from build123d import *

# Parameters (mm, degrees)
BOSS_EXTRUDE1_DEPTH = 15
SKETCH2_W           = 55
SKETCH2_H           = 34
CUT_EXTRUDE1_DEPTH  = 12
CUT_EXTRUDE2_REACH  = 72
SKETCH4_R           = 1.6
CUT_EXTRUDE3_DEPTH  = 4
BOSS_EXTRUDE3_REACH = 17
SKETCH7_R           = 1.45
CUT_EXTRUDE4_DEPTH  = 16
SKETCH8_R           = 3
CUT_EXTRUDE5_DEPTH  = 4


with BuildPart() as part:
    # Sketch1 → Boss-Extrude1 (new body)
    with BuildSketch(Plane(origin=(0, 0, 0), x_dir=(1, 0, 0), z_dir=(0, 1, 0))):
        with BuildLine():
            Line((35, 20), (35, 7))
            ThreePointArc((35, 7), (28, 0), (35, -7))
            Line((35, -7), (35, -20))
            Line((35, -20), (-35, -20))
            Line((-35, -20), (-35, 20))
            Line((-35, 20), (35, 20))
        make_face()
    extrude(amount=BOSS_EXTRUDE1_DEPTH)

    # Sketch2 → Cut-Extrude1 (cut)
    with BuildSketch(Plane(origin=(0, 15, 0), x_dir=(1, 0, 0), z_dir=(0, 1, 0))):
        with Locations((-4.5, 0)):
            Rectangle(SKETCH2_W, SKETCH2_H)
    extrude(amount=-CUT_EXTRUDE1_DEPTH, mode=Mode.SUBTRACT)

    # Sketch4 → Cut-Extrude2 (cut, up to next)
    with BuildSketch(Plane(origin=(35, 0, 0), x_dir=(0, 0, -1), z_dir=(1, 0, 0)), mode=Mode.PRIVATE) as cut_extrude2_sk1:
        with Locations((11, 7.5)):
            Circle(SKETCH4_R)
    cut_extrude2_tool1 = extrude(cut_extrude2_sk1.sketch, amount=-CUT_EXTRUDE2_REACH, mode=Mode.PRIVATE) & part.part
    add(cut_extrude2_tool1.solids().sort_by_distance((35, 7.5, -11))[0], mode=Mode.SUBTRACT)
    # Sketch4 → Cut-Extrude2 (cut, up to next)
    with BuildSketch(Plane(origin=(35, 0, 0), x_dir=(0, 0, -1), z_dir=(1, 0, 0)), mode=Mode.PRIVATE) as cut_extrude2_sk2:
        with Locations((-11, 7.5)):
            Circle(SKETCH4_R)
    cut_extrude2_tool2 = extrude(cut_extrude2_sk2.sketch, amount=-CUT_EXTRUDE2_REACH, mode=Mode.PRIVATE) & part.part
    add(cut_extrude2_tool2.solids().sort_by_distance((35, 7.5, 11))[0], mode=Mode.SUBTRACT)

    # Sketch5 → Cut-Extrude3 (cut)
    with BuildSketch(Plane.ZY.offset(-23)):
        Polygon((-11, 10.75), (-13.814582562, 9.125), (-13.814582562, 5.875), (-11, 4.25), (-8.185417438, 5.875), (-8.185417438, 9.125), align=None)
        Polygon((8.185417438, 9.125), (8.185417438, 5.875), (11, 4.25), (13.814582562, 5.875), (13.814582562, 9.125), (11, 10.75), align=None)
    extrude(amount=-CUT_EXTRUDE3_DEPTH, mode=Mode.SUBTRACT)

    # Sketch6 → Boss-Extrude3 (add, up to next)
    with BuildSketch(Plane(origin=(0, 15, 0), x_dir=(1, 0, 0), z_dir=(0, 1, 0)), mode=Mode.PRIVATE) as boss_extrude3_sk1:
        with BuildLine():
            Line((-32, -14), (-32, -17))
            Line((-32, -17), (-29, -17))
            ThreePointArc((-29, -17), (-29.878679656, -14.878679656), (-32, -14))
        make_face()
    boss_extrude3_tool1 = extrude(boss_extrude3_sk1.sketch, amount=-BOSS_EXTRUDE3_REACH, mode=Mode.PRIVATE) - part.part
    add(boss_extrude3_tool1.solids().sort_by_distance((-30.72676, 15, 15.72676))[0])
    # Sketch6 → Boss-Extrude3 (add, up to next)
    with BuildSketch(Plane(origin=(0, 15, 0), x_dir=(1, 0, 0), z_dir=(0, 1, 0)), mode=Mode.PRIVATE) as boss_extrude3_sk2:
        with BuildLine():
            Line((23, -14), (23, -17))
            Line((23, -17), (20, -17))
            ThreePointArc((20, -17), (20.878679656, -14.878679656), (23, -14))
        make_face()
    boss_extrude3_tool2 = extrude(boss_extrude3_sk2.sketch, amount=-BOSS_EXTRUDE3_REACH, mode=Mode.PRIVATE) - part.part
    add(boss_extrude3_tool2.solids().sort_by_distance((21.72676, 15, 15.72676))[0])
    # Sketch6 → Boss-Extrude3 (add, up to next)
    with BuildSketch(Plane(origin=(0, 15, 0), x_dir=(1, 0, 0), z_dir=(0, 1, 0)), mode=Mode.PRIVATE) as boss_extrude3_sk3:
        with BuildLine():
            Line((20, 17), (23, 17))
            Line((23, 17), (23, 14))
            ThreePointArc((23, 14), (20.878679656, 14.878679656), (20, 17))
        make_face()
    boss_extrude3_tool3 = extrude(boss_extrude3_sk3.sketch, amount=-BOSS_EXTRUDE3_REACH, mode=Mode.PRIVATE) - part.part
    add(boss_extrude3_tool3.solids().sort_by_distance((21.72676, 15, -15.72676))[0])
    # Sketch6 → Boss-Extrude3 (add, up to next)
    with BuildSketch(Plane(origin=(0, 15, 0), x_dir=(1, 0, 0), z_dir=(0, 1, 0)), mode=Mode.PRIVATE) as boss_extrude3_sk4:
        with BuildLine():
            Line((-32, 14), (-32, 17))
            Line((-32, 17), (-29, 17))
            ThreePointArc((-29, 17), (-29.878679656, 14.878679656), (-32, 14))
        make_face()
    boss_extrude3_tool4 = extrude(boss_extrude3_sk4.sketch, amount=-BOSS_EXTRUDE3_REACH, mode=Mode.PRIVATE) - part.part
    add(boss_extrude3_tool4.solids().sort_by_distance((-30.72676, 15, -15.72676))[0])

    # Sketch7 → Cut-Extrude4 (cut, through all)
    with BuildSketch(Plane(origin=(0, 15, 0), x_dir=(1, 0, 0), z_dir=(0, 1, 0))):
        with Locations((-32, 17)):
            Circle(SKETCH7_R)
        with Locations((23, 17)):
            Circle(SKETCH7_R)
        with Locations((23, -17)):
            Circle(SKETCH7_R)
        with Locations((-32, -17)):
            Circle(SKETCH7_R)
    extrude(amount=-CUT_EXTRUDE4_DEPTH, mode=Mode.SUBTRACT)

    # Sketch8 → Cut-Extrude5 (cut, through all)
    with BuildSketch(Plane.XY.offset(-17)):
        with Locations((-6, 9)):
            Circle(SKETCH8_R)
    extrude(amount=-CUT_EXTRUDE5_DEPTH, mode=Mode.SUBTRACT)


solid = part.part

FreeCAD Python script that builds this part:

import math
import FreeCAD as App
import Part
import Sketcher
from FreeCAD import Vector
Q = App.Units.Quantity

doc = App.newDocument("Part")
body = doc.addObject("PartDesign::Body", "Body")

# Sketch on XZ plane
sketch1 = doc.addObject("Sketcher::SketchObject", "Sketch")
body.addObject(sketch1)
sketch1.AttachmentSupport = (doc.XZ_Plane, [""])
sketch1.MapMode = "FlatFace"
sketch1.addGeometry(Part.LineSegment(Vector(35, -7, 0), Vector(35, -20, 0)), False)
sketch1.addGeometry(Part.LineSegment(Vector(35, -20, 0), Vector(-35, -20, 0)), False)
sketch1.addGeometry(Part.LineSegment(Vector(-35, -20, 0), Vector(-35, 20, 0)), False)
sketch1.addGeometry(Part.LineSegment(Vector(-35, 20, 0), Vector(35, 20, 0)), False)
sketch1.addGeometry(Part.LineSegment(Vector(35, 20, 0), Vector(35, 7, 0)), False)
sketch1.addGeometry(Part.ArcOfCircle(Part.Circle(Vector(35, 0, 0), Vector(0, 0, 1), 7), math.radians(90), math.radians(270)), False)
sketch1.addConstraint(Sketcher.Constraint("Coincident", 0, 2, 1, 1))
sketch1.addConstraint(Sketcher.Constraint("Coincident", 1, 2, 2, 1))
sketch1.addConstraint(Sketcher.Constraint("Coincident", 2, 2, 3, 1))
sketch1.addConstraint(Sketcher.Constraint("Coincident", 3, 2, 4, 1))
sketch1.addConstraint(Sketcher.Constraint("Coincident", 4, 2, 5, 1))
sketch1.addConstraint(Sketcher.Constraint("Coincident", 5, 2, 0, 1))
sketch1.addConstraint(Sketcher.Constraint("Vertical", 0))
sketch1.addConstraint(Sketcher.Constraint("Horizontal", 1))
sketch1.addConstraint(Sketcher.Constraint("Vertical", 2))
sketch1.addConstraint(Sketcher.Constraint("Horizontal", 3))
sketch1.addConstraint(Sketcher.Constraint("Vertical", 4))
sketch1.addConstraint(Sketcher.Constraint("Symmetric", 0, 2, 2, 2, -1, 1))
sketch1.addConstraint(Sketcher.Constraint("Symmetric", 4, 2, 5, 2, -1))
sketch1.addConstraint(Sketcher.Constraint("Vertical", 5, 3, 0, 2))
sketch1.addConstraint(Sketcher.Constraint("Radius", 5, 7.0))
sketch1.addConstraint(Sketcher.Constraint("DistanceX", 1, 2, 1, 1, 70.0))
sketch1.addConstraint(Sketcher.Constraint("DistanceY", 0, 2, 0, 1, 13.0))
pad1 = doc.addObject("PartDesign::Pad", "Pad")
body.addObject(pad1)
pad1.Profile = sketch1
pad1.Length = 15
pad1.Reversed = True

# Sketch on XZ plane
sketch2 = doc.addObject("Sketcher::SketchObject", "Sketch001")
body.addObject(sketch2)
sketch2.AttachmentSupport = (doc.XZ_Plane, [""])
sketch2.MapMode = "FlatFace"
sketch2.AttachmentOffset = App.Placement(Vector(0, 0, -15), App.Rotation())
sketch2.addGeometry(Part.LineSegment(Vector(-32, -17, 0), Vector(-32, 17, 0)), False)
sketch2.addGeometry(Part.LineSegment(Vector(-32, 17, 0), Vector(23, 17, 0)), False)
sketch2.addGeometry(Part.LineSegment(Vector(23, 17, 0), Vector(23, -17, 0)), False)
sketch2.addGeometry(Part.LineSegment(Vector(23, -17, 0), Vector(-32, -17, 0)), False)
sketch2.addConstraint(Sketcher.Constraint("Coincident", 0, 2, 1, 1))
sketch2.addConstraint(Sketcher.Constraint("Coincident", 1, 2, 2, 1))
sketch2.addConstraint(Sketcher.Constraint("Coincident", 2, 2, 3, 1))
sketch2.addConstraint(Sketcher.Constraint("Coincident", 3, 2, 0, 1))
sketch2.addConstraint(Sketcher.Constraint("Vertical", 0))
sketch2.addConstraint(Sketcher.Constraint("Horizontal", 1))
sketch2.addConstraint(Sketcher.Constraint("Vertical", 2))
sketch2.addConstraint(Sketcher.Constraint("Horizontal", 3))
sketch2.addConstraint(Sketcher.Constraint("DistanceX", 1, 1, 1, 2, 55.0))
sketch2.addConstraint(Sketcher.Constraint("DistanceY", 0, 1, 0, 2, 34.0))
sketch2.addConstraint(Sketcher.Constraint("DistanceX", 0, 2, -1, 1, 32.0))
sketch2.addConstraint(Sketcher.Constraint("DistanceY", -1, 1, 0, 2, 17.0))
pocket1 = doc.addObject("PartDesign::Pocket", "Pocket")
body.addObject(pocket1)
pocket1.Profile = sketch2
pocket1.Length = 12
pocket1.Reversed = True

# Sketch on YZ plane
sketch3 = doc.addObject("Sketcher::SketchObject", "Sketch002")
body.addObject(sketch3)
sketch3.AttachmentSupport = (doc.YZ_Plane, [""])
sketch3.MapMode = "FlatFace"
sketch3.AttachmentOffset = App.Placement(Vector(0, 0, 35), App.Rotation())
sketch3.addGeometry(Part.Circle(Vector(7.5, -11, 0), Vector(0, 0, 1), 1.6), False)
sketch3.addConstraint(Sketcher.Constraint("Diameter", 0, 3.2))
sketch3.addConstraint(Sketcher.Constraint("DistanceY", 0, 3, -1, 1, 11.0))
sketch3.addConstraint(Sketcher.Constraint("DistanceX", -1, 1, 0, 3, 7.5))
pocket2 = doc.addObject("PartDesign::Pocket", "Pocket001")
body.addObject(pocket2)
pocket2.Profile = sketch3
pocket2.Type = "UpToFirst"

# Sketch on YZ plane
sketch4 = doc.addObject("Sketcher::SketchObject", "Sketch003")
body.addObject(sketch4)
sketch4.AttachmentSupport = (doc.YZ_Plane, [""])
sketch4.MapMode = "FlatFace"
sketch4.AttachmentOffset = App.Placement(Vector(0, 0, 35), App.Rotation())
sketch4.addGeometry(Part.Circle(Vector(7.5, 11, 0), Vector(0, 0, 1), 1.6), False)
sketch4.addConstraint(Sketcher.Constraint("Diameter", 0, 3.2))
sketch4.addConstraint(Sketcher.Constraint("DistanceY", -1, 1, 0, 3, 11.0))
sketch4.addConstraint(Sketcher.Constraint("DistanceX", -1, 1, 0, 3, 7.5))
pocket3 = doc.addObject("PartDesign::Pocket", "Pocket002")
body.addObject(pocket3)
pocket3.Profile = sketch4
pocket3.Type = "UpToFirst"

# Sketch on YZ plane
sketch5 = doc.addObject("Sketcher::SketchObject", "Sketch004")
body.addObject(sketch5)
sketch5.AttachmentSupport = (doc.YZ_Plane, [""])
sketch5.MapMode = "FlatFace"
sketch5.AttachmentOffset = App.Placement(Vector(0, 0, 23), App.Rotation())
sketch5.addGeometry(Part.LineSegment(Vector(10.8, -11, 0), Vector(9.1, -13.8, 0)), False)
sketch5.addGeometry(Part.LineSegment(Vector(9.1, -13.8, 0), Vector(5.9, -13.8, 0)), False)
sketch5.addGeometry(Part.LineSegment(Vector(5.9, -13.8, 0), Vector(4.2, -11, 0)), False)
sketch5.addGeometry(Part.LineSegment(Vector(4.2, -11, 0), Vector(5.9, -8.2, 0)), False)
sketch5.addGeometry(Part.LineSegment(Vector(5.9, -8.2, 0), Vector(9.1, -8.2, 0)), False)
sketch5.addGeometry(Part.LineSegment(Vector(9.1, -8.2, 0), Vector(10.8, -11, 0)), False)
sketch5.addGeometry(Part.LineSegment(Vector(9.1, 8.2, 0), Vector(5.9, 8.2, 0)), False)
sketch5.addGeometry(Part.LineSegment(Vector(5.9, 8.2, 0), Vector(4.2, 11, 0)), False)
sketch5.addGeometry(Part.LineSegment(Vector(4.2, 11, 0), Vector(5.9, 13.8, 0)), False)
sketch5.addGeometry(Part.LineSegment(Vector(5.9, 13.8, 0), Vector(9.1, 13.8, 0)), False)
sketch5.addGeometry(Part.LineSegment(Vector(9.1, 13.8, 0), Vector(10.8, 11, 0)), False)
sketch5.addGeometry(Part.LineSegment(Vector(10.8, 11, 0), Vector(9.1, 8.2, 0)), False)
sketch5.addConstraint(Sketcher.Constraint("Coincident", 0, 2, 1, 1))
sketch5.addConstraint(Sketcher.Constraint("Coincident", 1, 2, 2, 1))
sketch5.addConstraint(Sketcher.Constraint("Coincident", 2, 2, 3, 1))
sketch5.addConstraint(Sketcher.Constraint("Coincident", 3, 2, 4, 1))
sketch5.addConstraint(Sketcher.Constraint("Coincident", 4, 2, 5, 1))
sketch5.addConstraint(Sketcher.Constraint("Coincident", 5, 2, 0, 1))
sketch5.addConstraint(Sketcher.Constraint("Coincident", 6, 2, 7, 1))
sketch5.addConstraint(Sketcher.Constraint("Coincident", 7, 2, 8, 1))
sketch5.addConstraint(Sketcher.Constraint("Coincident", 8, 2, 9, 1))
sketch5.addConstraint(Sketcher.Constraint("Coincident", 9, 2, 10, 1))
sketch5.addConstraint(Sketcher.Constraint("Coincident", 10, 2, 11, 1))
sketch5.addConstraint(Sketcher.Constraint("Coincident", 11, 2, 6, 1))
sketch5.addConstraint(Sketcher.Constraint("Horizontal", 1))
sketch5.addConstraint(Sketcher.Constraint("Horizontal", 4))
sketch5.addConstraint(Sketcher.Constraint("Horizontal", 6))
sketch5.addConstraint(Sketcher.Constraint("Horizontal", 9))
sketch5.addConstraint(Sketcher.Constraint("Symmetric", 3, 2, 6, 2, -1))
sketch5.addConstraint(Sketcher.Constraint("Symmetric", 2, 2, 7, 2, -1))
sketch5.addConstraint(Sketcher.Constraint("Symmetric", 1, 2, 8, 2, -1))
sketch5.addConstraint(Sketcher.Constraint("Symmetric", 5, 2, 10, 2, -1))
sketch5.addConstraint(Sketcher.Constraint("Parallel", 0, 3))
sketch5.addConstraint(Sketcher.Constraint("Parallel", 2, 5))
sketch5.addConstraint(Sketcher.Constraint("Parallel", 5, 7))
sketch5.addConstraint(Sketcher.Constraint("Parallel", 7, 10))
sketch5.addConstraint(Sketcher.Constraint("Parallel", 8, 11))
sketch5.addConstraint(Sketcher.Constraint("Horizontal", 2, 2, 5, 2))
sketch5.addConstraint(Sketcher.Constraint("Vertical", 1, 2, 3, 2))
sketch5.addConstraint(Sketcher.Constraint("Angle", 0, Q("-120 deg")))
sketch5.addConstraint(Sketcher.Constraint("DistanceY", 2, 2, -1, 1, 11.0))
sketch5.addConstraint(Sketcher.Constraint("DistanceX", 1, 2, 1, 1, 3.25))
sketch5.addConstraint(Sketcher.Constraint("DistanceX", 2, 2, 5, 2, 6.5))
sketch5.addConstraint(Sketcher.Constraint("DistanceX", -1, 1, 2, 2, 4.25))
pocket4 = doc.addObject("PartDesign::Pocket", "Pocket003")
body.addObject(pocket4)
pocket4.Profile = sketch5
pocket4.Length = 4
pocket4.Reversed = True

# Sketch on XZ plane
sketch6 = doc.addObject("Sketcher::SketchObject", "Sketch005")
body.addObject(sketch6)
sketch6.AttachmentSupport = (doc.XZ_Plane, [""])
sketch6.MapMode = "FlatFace"
sketch6.AttachmentOffset = App.Placement(Vector(0, 0, -15), App.Rotation())
sketch6.addGeometry(Part.LineSegment(Vector(-32, 14, 0), Vector(-32, 17, 0)), False)
sketch6.addGeometry(Part.LineSegment(Vector(-32, 17, 0), Vector(-29, 17, 0)), False)
sketch6.addGeometry(Part.ArcOfCircle(Part.Circle(Vector(-32, 17, 0), Vector(0, 0, 1), 3), math.radians(-90), math.radians(0)), False)
sketch6.addConstraint(Sketcher.Constraint("Coincident", 0, 2, 1, 1))
sketch6.addConstraint(Sketcher.Constraint("Coincident", 1, 2, 2, 2))
sketch6.addConstraint(Sketcher.Constraint("Coincident", 2, 1, 0, 1))
sketch6.addConstraint(Sketcher.Constraint("Vertical", 0))
sketch6.addConstraint(Sketcher.Constraint("Horizontal", 1))
sketch6.addConstraint(Sketcher.Constraint("Coincident", 0, 2, 2, 3))
sketch6.addConstraint(Sketcher.Constraint("Radius", 2, 3.0))
sketch6.addConstraint(Sketcher.Constraint("DistanceX", 2, 3, -1, 1, 32.0))
sketch6.addConstraint(Sketcher.Constraint("DistanceY", -1, 1, 2, 3, 17.0))
pad2 = doc.addObject("PartDesign::Pad", "Pad001")
body.addObject(pad2)
pad2.Profile = sketch6
pad2.Type = "UpToFirst"

# Sketch on XZ plane
sketch7 = doc.addObject("Sketcher::SketchObject", "Sketch006")
body.addObject(sketch7)
sketch7.AttachmentSupport = (doc.XZ_Plane, [""])
sketch7.MapMode = "FlatFace"
sketch7.AttachmentOffset = App.Placement(Vector(0, 0, -15), App.Rotation())
sketch7.addGeometry(Part.LineSegment(Vector(23, 17, 0), Vector(23, 14, 0)), False)
sketch7.addGeometry(Part.ArcOfCircle(Part.Circle(Vector(23, 17, 0), Vector(0, 0, 1), 3), math.radians(180), math.radians(270)), False)
sketch7.addGeometry(Part.LineSegment(Vector(20, 17, 0), Vector(23, 17, 0)), False)
sketch7.addConstraint(Sketcher.Constraint("Coincident", 0, 2, 1, 2))
sketch7.addConstraint(Sketcher.Constraint("Coincident", 1, 1, 2, 1))
sketch7.addConstraint(Sketcher.Constraint("Coincident", 2, 2, 0, 1))
sketch7.addConstraint(Sketcher.Constraint("Vertical", 0))
sketch7.addConstraint(Sketcher.Constraint("Horizontal", 2))
sketch7.addConstraint(Sketcher.Constraint("Coincident", 2, 2, 1, 3))
sketch7.addConstraint(Sketcher.Constraint("Radius", 1, 3.0))
sketch7.addConstraint(Sketcher.Constraint("DistanceX", -1, 1, 1, 3, 23.0))
sketch7.addConstraint(Sketcher.Constraint("DistanceY", -1, 1, 1, 3, 17.0))
pad3 = doc.addObject("PartDesign::Pad", "Pad002")
body.addObject(pad3)
pad3.Profile = sketch7
pad3.Type = "UpToFirst"

# Sketch on XZ plane
sketch8 = doc.addObject("Sketcher::SketchObject", "Sketch007")
body.addObject(sketch8)
sketch8.AttachmentSupport = (doc.XZ_Plane, [""])
sketch8.MapMode = "FlatFace"
sketch8.AttachmentOffset = App.Placement(Vector(0, 0, -15), App.Rotation())
sketch8.addGeometry(Part.LineSegment(Vector(23, -17, 0), Vector(20, -17, 0)), False)
sketch8.addGeometry(Part.ArcOfCircle(Part.Circle(Vector(23, -17, 0), Vector(0, 0, 1), 3), math.radians(90), math.radians(180)), False)
sketch8.addGeometry(Part.LineSegment(Vector(23, -14, 0), Vector(23, -17, 0)), False)
sketch8.addConstraint(Sketcher.Constraint("Coincident", 0, 2, 1, 2))
sketch8.addConstraint(Sketcher.Constraint("Coincident", 1, 1, 2, 1))
sketch8.addConstraint(Sketcher.Constraint("Coincident", 2, 2, 0, 1))
sketch8.addConstraint(Sketcher.Constraint("Horizontal", 0))
sketch8.addConstraint(Sketcher.Constraint("Vertical", 2))
sketch8.addConstraint(Sketcher.Constraint("Coincident", 2, 2, 1, 3))
sketch8.addConstraint(Sketcher.Constraint("Radius", 1, 3.0))
sketch8.addConstraint(Sketcher.Constraint("DistanceX", -1, 1, 1, 3, 23.0))
sketch8.addConstraint(Sketcher.Constraint("DistanceY", 1, 3, -1, 1, 17.0))
pad4 = doc.addObject("PartDesign::Pad", "Pad003")
body.addObject(pad4)
pad4.Profile = sketch8
pad4.Type = "UpToFirst"

# Sketch on XZ plane
sketch9 = doc.addObject("Sketcher::SketchObject", "Sketch008")
body.addObject(sketch9)
sketch9.AttachmentSupport = (doc.XZ_Plane, [""])
sketch9.MapMode = "FlatFace"
sketch9.AttachmentOffset = App.Placement(Vector(0, 0, -15), App.Rotation())
sketch9.addGeometry(Part.LineSegment(Vector(-32, -17, 0), Vector(-32, -14, 0)), False)
sketch9.addGeometry(Part.ArcOfCircle(Part.Circle(Vector(-32, -17, 0), Vector(0, 0, 1), 3), math.radians(0), math.radians(90)), False)
sketch9.addGeometry(Part.LineSegment(Vector(-29, -17, 0), Vector(-32, -17, 0)), False)
sketch9.addConstraint(Sketcher.Constraint("Coincident", 0, 2, 1, 2))
sketch9.addConstraint(Sketcher.Constraint("Coincident", 1, 1, 2, 1))
sketch9.addConstraint(Sketcher.Constraint("Coincident", 2, 2, 0, 1))
sketch9.addConstraint(Sketcher.Constraint("Vertical", 0))
sketch9.addConstraint(Sketcher.Constraint("Horizontal", 2))
sketch9.addConstraint(Sketcher.Constraint("Coincident", 2, 2, 1, 3))
sketch9.addConstraint(Sketcher.Constraint("Radius", 1, 3.0))
sketch9.addConstraint(Sketcher.Constraint("DistanceX", 1, 3, -1, 1, 32.0))
sketch9.addConstraint(Sketcher.Constraint("DistanceY", 1, 3, -1, 1, 17.0))
pad5 = doc.addObject("PartDesign::Pad", "Pad004")
body.addObject(pad5)
pad5.Profile = sketch9
pad5.Type = "UpToFirst"

# Sketch on XZ plane
sketch10 = doc.addObject("Sketcher::SketchObject", "Sketch009")
body.addObject(sketch10)
sketch10.AttachmentSupport = (doc.XZ_Plane, [""])
sketch10.MapMode = "FlatFace"
sketch10.AttachmentOffset = App.Placement(Vector(0, 0, -15), App.Rotation())
sketch10.addGeometry(Part.Circle(Vector(-32, -17, 0), Vector(0, 0, 1), 1.4), False)
sketch10.addGeometry(Part.Circle(Vector(23, -17, 0), Vector(0, 0, 1), 1.4), False)
sketch10.addGeometry(Part.Circle(Vector(23, 17, 0), Vector(0, 0, 1), 1.4), False)
sketch10.addGeometry(Part.Circle(Vector(-32, 17, 0), Vector(0, 0, 1), 1.4), False)
sketch10.addConstraint(Sketcher.Constraint("Equal", 0, 1))
sketch10.addConstraint(Sketcher.Constraint("Equal", 1, 2))
sketch10.addConstraint(Sketcher.Constraint("Equal", 2, 3))
sketch10.addConstraint(Sketcher.Constraint("Symmetric", 1, 3, 2, 3, -1))
sketch10.addConstraint(Sketcher.Constraint("Symmetric", 0, 3, 3, 3, -1))
sketch10.addConstraint(Sketcher.Constraint("Horizontal", 0, 3, 1, 3))
sketch10.addConstraint(Sketcher.Constraint("Diameter", 0, 2.9))
sketch10.addConstraint(Sketcher.Constraint("DistanceX", 0, 3, -1, 1, 32.0))
sketch10.addConstraint(Sketcher.Constraint("DistanceY", 0, 3, -1, 1, 17.0))
sketch10.addConstraint(Sketcher.Constraint("DistanceX", -1, 1, 1, 3, 23.0))
pocket5 = doc.addObject("PartDesign::Pocket", "Pocket004")
body.addObject(pocket5)
pocket5.Profile = sketch10
pocket5.Type = "ThroughAll"
pocket5.Reversed = True

# Sketch on XY plane
sketch11 = doc.addObject("Sketcher::SketchObject", "Sketch010")
body.addObject(sketch11)
sketch11.AttachmentSupport = (doc.XY_Plane, [""])
sketch11.MapMode = "FlatFace"
sketch11.AttachmentOffset = App.Placement(Vector(0, 0, -17), App.Rotation())
sketch11.addGeometry(Part.Circle(Vector(-6, 9, 0), Vector(0, 0, 1), 3), False)
sketch11.addConstraint(Sketcher.Constraint("Diameter", 0, 6.0))
sketch11.addConstraint(Sketcher.Constraint("DistanceX", 0, 3, -1, 1, 6.0))
sketch11.addConstraint(Sketcher.Constraint("DistanceY", -1, 1, 0, 3, 9.0))
pocket6 = doc.addObject("PartDesign::Pocket", "Pocket005")
body.addObject(pocket6)
pocket6.Profile = sketch11
pocket6.Type = "ThroughAll"

doc.recompute()
